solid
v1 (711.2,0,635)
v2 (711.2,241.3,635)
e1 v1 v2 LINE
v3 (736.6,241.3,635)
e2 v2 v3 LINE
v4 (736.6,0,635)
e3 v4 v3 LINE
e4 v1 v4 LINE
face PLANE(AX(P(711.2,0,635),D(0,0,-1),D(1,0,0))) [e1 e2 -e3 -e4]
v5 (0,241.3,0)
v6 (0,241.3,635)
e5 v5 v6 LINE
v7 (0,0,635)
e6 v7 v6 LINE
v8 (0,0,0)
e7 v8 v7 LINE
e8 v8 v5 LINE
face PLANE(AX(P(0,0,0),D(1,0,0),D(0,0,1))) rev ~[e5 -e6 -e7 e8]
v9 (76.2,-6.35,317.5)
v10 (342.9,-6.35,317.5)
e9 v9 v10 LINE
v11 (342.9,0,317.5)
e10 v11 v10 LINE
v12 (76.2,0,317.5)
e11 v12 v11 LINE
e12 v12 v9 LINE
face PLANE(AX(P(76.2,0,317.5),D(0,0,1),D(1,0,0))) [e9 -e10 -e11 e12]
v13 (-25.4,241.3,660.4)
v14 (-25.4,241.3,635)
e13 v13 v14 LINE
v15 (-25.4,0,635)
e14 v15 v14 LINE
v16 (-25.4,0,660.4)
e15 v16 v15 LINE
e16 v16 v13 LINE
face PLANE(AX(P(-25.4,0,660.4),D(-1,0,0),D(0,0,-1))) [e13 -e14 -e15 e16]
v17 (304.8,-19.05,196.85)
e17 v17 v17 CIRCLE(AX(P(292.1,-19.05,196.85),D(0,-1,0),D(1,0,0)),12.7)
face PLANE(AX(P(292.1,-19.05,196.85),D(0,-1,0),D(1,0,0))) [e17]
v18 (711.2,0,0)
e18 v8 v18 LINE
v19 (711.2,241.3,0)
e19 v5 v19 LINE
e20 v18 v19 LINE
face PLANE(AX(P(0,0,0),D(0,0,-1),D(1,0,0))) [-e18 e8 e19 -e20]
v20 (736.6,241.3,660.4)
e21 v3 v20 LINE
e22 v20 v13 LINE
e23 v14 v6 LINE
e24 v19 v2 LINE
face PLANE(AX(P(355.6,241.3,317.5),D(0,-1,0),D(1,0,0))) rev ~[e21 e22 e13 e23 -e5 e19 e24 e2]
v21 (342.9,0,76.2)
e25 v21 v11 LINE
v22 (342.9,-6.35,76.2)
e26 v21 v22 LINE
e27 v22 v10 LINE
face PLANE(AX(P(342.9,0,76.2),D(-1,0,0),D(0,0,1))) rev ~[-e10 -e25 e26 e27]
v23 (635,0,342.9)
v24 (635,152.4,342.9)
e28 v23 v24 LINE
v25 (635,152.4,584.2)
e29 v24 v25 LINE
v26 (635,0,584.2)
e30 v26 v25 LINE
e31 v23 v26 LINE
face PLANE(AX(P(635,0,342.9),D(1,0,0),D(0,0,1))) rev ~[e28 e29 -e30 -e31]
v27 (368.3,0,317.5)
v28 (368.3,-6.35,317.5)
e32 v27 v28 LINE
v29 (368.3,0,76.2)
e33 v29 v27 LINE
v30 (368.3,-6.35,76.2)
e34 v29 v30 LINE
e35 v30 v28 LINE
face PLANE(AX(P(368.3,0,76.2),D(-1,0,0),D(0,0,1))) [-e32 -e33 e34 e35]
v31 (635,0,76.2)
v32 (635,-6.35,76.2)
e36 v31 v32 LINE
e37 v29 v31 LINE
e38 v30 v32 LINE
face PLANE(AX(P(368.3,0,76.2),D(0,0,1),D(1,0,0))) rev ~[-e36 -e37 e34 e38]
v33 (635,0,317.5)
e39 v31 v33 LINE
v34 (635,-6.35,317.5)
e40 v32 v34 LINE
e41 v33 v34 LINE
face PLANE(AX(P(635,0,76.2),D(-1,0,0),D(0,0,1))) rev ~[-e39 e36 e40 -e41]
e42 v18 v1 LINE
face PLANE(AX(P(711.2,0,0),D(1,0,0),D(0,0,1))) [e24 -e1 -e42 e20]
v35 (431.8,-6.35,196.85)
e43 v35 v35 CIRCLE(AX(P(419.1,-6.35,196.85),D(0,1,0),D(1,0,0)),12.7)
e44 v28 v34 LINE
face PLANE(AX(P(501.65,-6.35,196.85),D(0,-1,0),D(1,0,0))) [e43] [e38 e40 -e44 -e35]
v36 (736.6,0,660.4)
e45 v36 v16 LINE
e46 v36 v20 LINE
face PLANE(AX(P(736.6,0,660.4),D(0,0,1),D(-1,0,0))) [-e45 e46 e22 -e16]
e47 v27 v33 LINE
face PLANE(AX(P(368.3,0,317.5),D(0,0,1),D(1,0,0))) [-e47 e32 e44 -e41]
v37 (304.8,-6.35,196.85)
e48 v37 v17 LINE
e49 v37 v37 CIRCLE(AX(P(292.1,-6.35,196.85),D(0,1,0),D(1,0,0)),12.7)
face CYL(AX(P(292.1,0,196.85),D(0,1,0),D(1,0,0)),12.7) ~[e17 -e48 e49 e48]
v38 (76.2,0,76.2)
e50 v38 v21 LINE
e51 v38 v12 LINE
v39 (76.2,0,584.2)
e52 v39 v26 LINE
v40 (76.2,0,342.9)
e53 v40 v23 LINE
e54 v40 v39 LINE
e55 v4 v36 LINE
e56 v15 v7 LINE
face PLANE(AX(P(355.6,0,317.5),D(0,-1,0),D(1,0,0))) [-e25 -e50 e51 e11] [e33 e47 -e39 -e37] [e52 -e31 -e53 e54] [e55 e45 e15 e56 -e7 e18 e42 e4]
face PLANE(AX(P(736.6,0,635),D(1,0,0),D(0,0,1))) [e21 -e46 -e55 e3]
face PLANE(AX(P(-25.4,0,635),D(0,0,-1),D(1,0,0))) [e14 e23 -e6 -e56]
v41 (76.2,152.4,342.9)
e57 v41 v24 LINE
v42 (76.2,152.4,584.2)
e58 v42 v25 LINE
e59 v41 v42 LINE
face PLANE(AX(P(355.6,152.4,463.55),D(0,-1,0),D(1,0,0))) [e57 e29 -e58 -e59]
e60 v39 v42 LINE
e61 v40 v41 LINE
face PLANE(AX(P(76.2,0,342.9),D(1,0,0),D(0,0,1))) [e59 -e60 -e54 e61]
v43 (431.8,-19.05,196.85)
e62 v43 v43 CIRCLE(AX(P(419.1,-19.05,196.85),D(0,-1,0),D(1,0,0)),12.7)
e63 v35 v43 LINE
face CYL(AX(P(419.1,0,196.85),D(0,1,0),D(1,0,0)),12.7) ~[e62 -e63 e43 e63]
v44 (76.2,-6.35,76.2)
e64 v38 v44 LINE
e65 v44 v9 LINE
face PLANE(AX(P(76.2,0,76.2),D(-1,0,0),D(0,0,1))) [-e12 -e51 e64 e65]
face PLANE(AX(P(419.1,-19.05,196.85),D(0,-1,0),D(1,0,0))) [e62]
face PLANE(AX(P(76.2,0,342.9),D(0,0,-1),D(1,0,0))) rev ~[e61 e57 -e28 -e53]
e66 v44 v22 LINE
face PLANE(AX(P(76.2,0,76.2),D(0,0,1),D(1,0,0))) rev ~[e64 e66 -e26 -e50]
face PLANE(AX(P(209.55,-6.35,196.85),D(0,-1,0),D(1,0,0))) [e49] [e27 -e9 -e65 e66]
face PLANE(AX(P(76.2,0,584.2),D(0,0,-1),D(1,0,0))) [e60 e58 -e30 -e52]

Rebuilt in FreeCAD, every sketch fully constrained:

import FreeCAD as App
import Part
import Sketcher
Q = App.Units.Quantity

doc = App.newDocument("Part")
body = doc.addObject("PartDesign::Body", "Body")

sketch1 = doc.addObject("Sketcher::SketchObject", "Sketch")
body.addObject(sketch1)
sketch1.AttachmentSupport = (doc.XZ_Plane, [""])
sketch1.MapMode = "FlatFace"
sketch1.addGeometry([
    Part.LineSegment(App.Vector(0, 635, 0), App.Vector(0, 0, 0)),
    Part.LineSegment(App.Vector(0, 0, 0), App.Vector(711.2, 0, 0)),
    Part.LineSegment(App.Vector(711.2, 0, 0), App.Vector(711.2, 635, 0)),
    Part.LineSegment(App.Vector(711.2, 635, 0), App.Vector(736.6, 635, 0)),
    Part.LineSegment(App.Vector(736.6, 635, 0), App.Vector(736.6, 660.4, 0)),
    Part.LineSegment(App.Vector(736.6, 660.4, 0), App.Vector(-25.4, 660.4, 0)),
    Part.LineSegment(App.Vector(-25.4, 660.4, 0), App.Vector(-25.4, 635, 0)),
    Part.LineSegment(App.Vector(-25.4, 635, 0), App.Vector(0, 635, 0)),
], False)
sketch1.addConstraint([
    Sketcher.Constraint("Coincident", 0, 2, 1, 1),
    Sketcher.Constraint("Coincident", 1, 2, 2, 1),
    Sketcher.Constraint("Coincident", 2, 2, 3, 1),
    Sketcher.Constraint("Coincident", 3, 2, 4, 1),
    Sketcher.Constraint("Coincident", 4, 2, 5, 1),
    Sketcher.Constraint("Coincident", 5, 2, 6, 1),
    Sketcher.Constraint("Coincident", 6, 2, 7, 1),
    Sketcher.Constraint("Coincident", 7, 2, 0, 1),
    Sketcher.Constraint("Vertical", 0),
    Sketcher.Constraint("Horizontal", 1),
    Sketcher.Constraint("Vertical", 2),
    Sketcher.Constraint("Horizontal", 3),
    Sketcher.Constraint("Vertical", 4),
    Sketcher.Constraint("Horizontal", 5),
    Sketcher.Constraint("Vertical", 6),
    Sketcher.Constraint("Horizontal", 7),
    Sketcher.Constraint("Coincident", 0, 2, -1, 1),
    Sketcher.Constraint("Horizontal", 3, 2, 6, 2),
    Sketcher.Constraint("Equal", 3, 7),
    Sketcher.Constraint("Equal", 7, 4),
    Sketcher.Constraint("DistanceX", 1, 1, 1, 2, Q("28 in")),
    Sketcher.Constraint("DistanceX", 3, 1, 3, 2, Q("1 in")),
    Sketcher.Constraint("DistanceY", 0, 2, 0, 1, Q("25 in")),
])
pad1 = doc.addObject("PartDesign::Pad", "Pad")
body.addObject(pad1)
pad1.Profile = sketch1
pad1.Length = Q("9.5 in")
pad1.Reversed = True

sketch2 = doc.addObject("Sketcher::SketchObject", "Sketch001")
body.addObject(sketch2)
sketch2.AttachmentSupport = (doc.XZ_Plane, [""])
sketch2.MapMode = "FlatFace"
sketch2.addGeometry([
    Part.LineSegment(App.Vector(76.2, 584.2, 0), App.Vector(76.2, 342.9, 0)),
    Part.LineSegment(App.Vector(76.2, 342.9, 0), App.Vector(635, 342.9, 0)),
    Part.LineSegment(App.Vector(635, 342.9, 0), App.Vector(635, 584.2, 0)),
    Part.LineSegment(App.Vector(635, 584.2, 0), App.Vector(76.2, 584.2, 0)),
], False)
sketch2.addConstraint([
    Sketcher.Constraint("Coincident", 0, 2, 1, 1),
    Sketcher.Constraint("Coincident", 1, 2, 2, 1),
    Sketcher.Constraint("Coincident", 2, 2, 3, 1),
    Sketcher.Constraint("Coincident", 3, 2, 0, 1),
    Sketcher.Constraint("Vertical", 0),
    Sketcher.Constraint("Horizontal", 1),
    Sketcher.Constraint("Vertical", 2),
    Sketcher.Constraint("Horizontal", 3),
    Sketcher.Constraint("DistanceX", 1, 1, 1, 2, Q("22 in")),
    Sketcher.Constraint("DistanceY", 0, 2, 0, 1, Q("9.5 in")),
    Sketcher.Constraint("DistanceX", -1, 1, 0, 2, Q("3 in")),
    Sketcher.Constraint("DistanceY", -1, 1, 2, 2, Q("23 in")),
])
pocket1 = doc.addObject("PartDesign::Pocket", "Pocket")
body.addObject(pocket1)
pocket1.Profile = sketch2
pocket1.Length = Q("6 in")

sketch3 = doc.addObject("Sketcher::SketchObject", "Sketch002")
body.addObject(sketch3)
sketch3.AttachmentSupport = (doc.XZ_Plane, [""])
sketch3.MapMode = "FlatFace"
sketch3.addGeometry([
    Part.LineSegment(App.Vector(76.2, 317.5, 0), App.Vector(76.2, 76.2, 0)),
    Part.LineSegment(App.Vector(76.2, 76.2, 0), App.Vector(342.9, 76.2, 0)),
    Part.LineSegment(App.Vector(342.9, 76.2, 0), App.Vector(342.9, 317.5, 0)),
    Part.LineSegment(App.Vector(342.9, 317.5, 0), App.Vector(76.2, 317.5, 0)),
    Part.LineSegment(App.Vector(368.3, 317.5, 0), App.Vector(368.3, 76.2, 0)),
    Part.LineSegment(App.Vector(368.3, 76.2, 0), App.Vector(635, 76.2, 0)),
    Part.LineSegment(App.Vector(635, 76.2, 0), App.Vector(635, 317.5, 0)),
    Part.LineSegment(App.Vector(635, 317.5, 0), App.Vector(368.3, 317.5, 0)),
], False)
sketch3.addConstraint([
    Sketcher.Constraint("Coincident", 0, 2, 1, 1),
    Sketcher.Constraint("Coincident", 1, 2, 2, 1),
    Sketcher.Constraint("Coincident", 2, 2, 3, 1),
    Sketcher.Constraint("Coincident", 3, 2, 0, 1),
    Sketcher.Constraint("Coincident", 4, 2, 5, 1),
    Sketcher.Constraint("Coincident", 5, 2, 6, 1),
    Sketcher.Constraint("Coincident", 6, 2, 7, 1),
    Sketcher.Constraint("Coincident", 7, 2, 4, 1),
    Sketcher.Constraint("Vertical", 0),
    Sketcher.Constraint("Horizontal", 1),
    Sketcher.Constraint("Vertical", 2),
    Sketcher.Constraint("Horizontal", 3),
    Sketcher.Constraint("Vertical", 4),
    Sketcher.Constraint("Horizontal", 5),
    Sketcher.Constraint("Vertical", 6),
    Sketcher.Constraint("Horizontal", 7),
    Sketcher.Constraint("Horizontal", 1, 2, 4, 2),
    Sketcher.Constraint("Horizontal", 3, 2, 6, 2),
    Sketcher.Constraint("Equal", 3, 5),
    Sketcher.Constraint("DistanceX", 1, 1, 1, 2, Q("10.5 in")),
    Sketcher.Constraint("DistanceY", 0, 2, 0, 1, Q("9.5 in")),
    Sketcher.Constraint("DistanceX", -1, 1, 0, 2, Q("3 in")),
    Sketcher.Constraint("DistanceY", -1, 1, 0, 2, Q("3 in")),
    Sketcher.Constraint("DistanceX", -1, 1, 5, 2, Q("25 in")),
])
pad2 = doc.addObject("PartDesign::Pad", "Pad001")
body.addObject(pad2)
pad2.Profile = sketch3
pad2.Length = Q("0.25 in")

sketch4 = doc.addObject("Sketcher::SketchObject", "Sketch003")
body.addObject(sketch4)
sketch4.AttachmentSupport = (doc.XZ_Plane, [""])
sketch4.MapMode = "FlatFace"
sketch4.addGeometry([
    Part.Circle(App.Vector(419.1, 196.85, 0), App.Vector(0, 0, 1), 12.7),
    Part.Circle(App.Vector(292.1, 196.85, 0), App.Vector(0, 0, 1), 12.7),
], False)
sketch4.addConstraint([
    Sketcher.Constraint("Equal", 0, 1),
    Sketcher.Constraint("Horizontal", 0, 3, 1, 3),
    Sketcher.Constraint("Diameter", 0, Q("1 in")),
    Sketcher.Constraint("DistanceX", 1, 3, 0, 3, Q("5 in")),
    Sketcher.Constraint("DistanceX", -1, 1, 0, 3, Q("16.5 in")),
    Sketcher.Constraint("DistanceY", -1, 1, 0, 3, Q("7.75 in")),
])
pad3 = doc.addObject("PartDesign::Pad", "Pad002")
body.addObject(pad3)
pad3.Profile = sketch4
pad3.Length = Q("0.75 in")

doc.recompute()
